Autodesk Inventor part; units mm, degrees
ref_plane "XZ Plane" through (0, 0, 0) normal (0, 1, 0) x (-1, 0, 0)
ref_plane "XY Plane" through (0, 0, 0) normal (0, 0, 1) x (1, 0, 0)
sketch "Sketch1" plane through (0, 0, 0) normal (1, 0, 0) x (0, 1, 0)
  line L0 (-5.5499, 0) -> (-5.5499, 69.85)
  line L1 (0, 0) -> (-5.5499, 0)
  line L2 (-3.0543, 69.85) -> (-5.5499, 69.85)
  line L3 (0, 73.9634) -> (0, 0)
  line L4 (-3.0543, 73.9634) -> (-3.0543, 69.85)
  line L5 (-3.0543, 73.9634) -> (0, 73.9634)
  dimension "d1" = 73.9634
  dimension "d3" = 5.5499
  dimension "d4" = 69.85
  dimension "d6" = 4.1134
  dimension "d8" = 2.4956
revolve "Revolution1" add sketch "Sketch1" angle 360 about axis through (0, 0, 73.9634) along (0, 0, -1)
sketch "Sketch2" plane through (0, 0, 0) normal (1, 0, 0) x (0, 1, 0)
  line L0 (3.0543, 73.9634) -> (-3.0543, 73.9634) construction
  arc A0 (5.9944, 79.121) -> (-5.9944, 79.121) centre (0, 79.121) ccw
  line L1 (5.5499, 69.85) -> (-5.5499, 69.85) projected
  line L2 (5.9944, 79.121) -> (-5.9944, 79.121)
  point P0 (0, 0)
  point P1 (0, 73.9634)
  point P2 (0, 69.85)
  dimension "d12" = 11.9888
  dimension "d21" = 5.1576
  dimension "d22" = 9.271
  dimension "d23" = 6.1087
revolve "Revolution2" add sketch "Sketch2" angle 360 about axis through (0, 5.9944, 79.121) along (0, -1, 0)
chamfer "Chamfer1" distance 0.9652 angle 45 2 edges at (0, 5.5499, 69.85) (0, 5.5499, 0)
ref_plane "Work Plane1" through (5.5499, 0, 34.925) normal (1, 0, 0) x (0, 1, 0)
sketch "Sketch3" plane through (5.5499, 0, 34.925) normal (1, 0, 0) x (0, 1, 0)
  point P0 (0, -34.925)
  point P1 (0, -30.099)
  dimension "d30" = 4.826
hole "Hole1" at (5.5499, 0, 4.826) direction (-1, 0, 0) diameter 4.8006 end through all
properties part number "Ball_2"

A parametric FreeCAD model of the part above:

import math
import FreeCAD as App
import Part
import Sketcher
Q = App.Units.Quantity


def edges_at(feature, points):
    """Names of the edges that pass closest to the given points."""
    edges = feature.Shape.Edges
    near = lambda p: min(range(len(edges)), key=lambda i: edges[i].distToShape(Part.Vertex(*p))[0])
    return sorted({f"Edge{near(p) + 1}" for p in points})

doc = App.newDocument("Part")
body = doc.addObject("PartDesign::Body", "Body")

# Sketch on YZ plane
sketch1 = body.newObject("Sketcher::SketchObject", "Sketch")
sketch1.AttachmentSupport = (doc.getObject("YZ_Plane"), [""])
sketch1.MapMode = "FlatFace"
sketch1.addGeometry([
    Part.LineSegment(App.Vector(-5.5, 69.8, 0), App.Vector(-5.5, 0, 0)),  # 0
    Part.LineSegment(App.Vector(-5.5, 0, 0), App.Vector(0, 0, 0)),  # 1
    Part.LineSegment(App.Vector(0, 0, 0), App.Vector(0, 74, 0)),  # 2
    Part.LineSegment(App.Vector(0, 74, 0), App.Vector(-3.1, 74, 0)),  # 3
    Part.LineSegment(App.Vector(-3.1, 74, 0), App.Vector(-3.1, 69.8, 0)),  # 4
    Part.LineSegment(App.Vector(-3.1, 69.8, 0), App.Vector(-5.5, 69.8, 0)),  # 5
], False)
sketch1.addConstraint([
    Sketcher.Constraint("Coincident", 0, 2, 1, 1),
    Sketcher.Constraint("Coincident", 1, 2, 2, 1),
    Sketcher.Constraint("Coincident", 2, 2, 3, 1),
    Sketcher.Constraint("Coincident", 3, 2, 4, 1),
    Sketcher.Constraint("Coincident", 4, 2, 5, 1),
    Sketcher.Constraint("Coincident", 5, 2, 0, 1),
    Sketcher.Constraint("Vertical", 0),
    Sketcher.Constraint("Horizontal", 1),
    Sketcher.Constraint("Vertical", 2),
    Sketcher.Constraint("Horizontal", 3),
    Sketcher.Constraint("Vertical", 4),
    Sketcher.Constraint("Horizontal", 5),
    Sketcher.Constraint("Coincident", 1, 2, -1, 1),
    Sketcher.Constraint("DistanceY", 0, 2, 0, 1, Q("2.75 in")),
    Sketcher.Constraint("DistanceX", 1, 1, 1, 2, Q("0.2185 in")),
    Sketcher.Constraint("DistanceX", 5, 2, 5, 1, 2.4956),
    Sketcher.Constraint("DistanceY", 2, 1, 2, 2, 73.9634),
])
revolution = body.newObject("PartDesign::Revolution", "Revolution")
revolution.Profile = sketch1
revolution.ReferenceAxis = (sketch1, ["V_Axis"])
revolution.Angle = 360

# Sketch on YZ plane
sketch2 = body.newObject("Sketcher::SketchObject", "Sketch001")
sketch2.AttachmentSupport = (doc.getObject("YZ_Plane"), [""])
sketch2.MapMode = "FlatFace"
sketch2.addGeometry([
    Part.LineSegment(App.Vector(-6, 79, 0), App.Vector(6, 79, 0)),
    Part.ArcOfCircle(Part.Circle(App.Vector(0, 79, 0), App.Vector(0, 0, 1), 6), math.radians(0), math.radians(180)),
], False)
sketch2.addGeometry(Part.LineSegment(App.Vector(6, 79, 0), App.Vector(-6, 79, 0)), True)  # axis
sketch2.addConstraint([
    Sketcher.Constraint("Coincident", 0, 1, 1, 2),
    Sketcher.Constraint("Coincident", 1, 1, 0, 2),
    Sketcher.Constraint("Horizontal", 0),
    Sketcher.Constraint("Horizontal", 2),
    Sketcher.Constraint("Coincident", 2, 1, 1, 1),
    Sketcher.Constraint("PointOnObject", 1, 3, -2),
    Sketcher.Constraint("Horizontal", 1, 3, 0, 1),
    Sketcher.Constraint("Equal", 0, 2),
    Sketcher.Constraint("Radius", 1, Q("0.236 in")),
    Sketcher.Constraint("DistanceY", -1, 1, 1, 3, Q("3.115 in")),
])
revolution2 = body.newObject("PartDesign::Revolution", "Revolution001")
revolution2.Profile = sketch2
revolution2.ReferenceAxis = (sketch2, ["Axis0"])
revolution2.Angle = 360
doc.recompute()

chamfer = body.newObject("PartDesign::Chamfer", "Chamfer")
chamfer.Base = (revolution2, edges_at(revolution2, [(0, 5.55, 69.85), (0, 5.55, 0)]))
chamfer.Size = Q("0.038 in")

# Sketch on YZ plane
sketch3 = body.newObject("Sketcher::SketchObject", "Sketch002")
sketch3.AttachmentSupport = (doc.getObject("YZ_Plane"), [""])
sketch3.MapMode = "FlatFace"
sketch3.AttachmentOffset = App.Placement(App.Vector(0, 0, 0.2185 * 25.4), App.Rotation())
sketch3.addGeometry(Part.Circle(App.Vector(0, 4.8, 0), App.Vector(0, 0, 1), 2.4), False)
sketch3.addConstraint([
    Sketcher.Constraint("PointOnObject", 0, 3, -2),
    Sketcher.Constraint("Diameter", 0, Q("0.189 in")),
    Sketcher.Constraint("DistanceY", -1, 1, 0, 3, Q("0.19 in")),
])
doc.recompute()
hole = body.newObject("PartDesign::Hole", "Hole")
hole.Profile = sketch3
hole.ThreadType = "None"
hole.Diameter = Q("0.189 in")
hole.DepthType = "ThroughAll"

doc.recompute()
